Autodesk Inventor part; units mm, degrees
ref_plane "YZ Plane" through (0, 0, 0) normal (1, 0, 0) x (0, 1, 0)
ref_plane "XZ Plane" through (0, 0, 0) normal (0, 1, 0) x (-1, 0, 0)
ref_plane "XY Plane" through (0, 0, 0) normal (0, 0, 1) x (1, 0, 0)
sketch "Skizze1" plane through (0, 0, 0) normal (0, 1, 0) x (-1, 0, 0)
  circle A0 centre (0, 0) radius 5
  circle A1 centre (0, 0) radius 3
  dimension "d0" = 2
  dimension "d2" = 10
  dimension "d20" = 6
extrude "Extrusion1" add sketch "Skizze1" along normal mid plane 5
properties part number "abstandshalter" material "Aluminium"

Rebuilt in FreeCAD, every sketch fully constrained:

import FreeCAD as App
import Part
import Sketcher
from FreeCAD import Vector

doc = App.newDocument("Part")
params = doc.addObject("Spreadsheet::Sheet", "Params")
for row, (alias, value) in enumerate([
    ("sketch1_diameter", "10 mm"),
    ("sketch1_diameter2", "6 mm"),
    ("pad1_length", "5 mm"),
], start=1):
    params.set(f"A{row}", alias)
    params.set(f"B{row}", "=" + value)
    params.setAlias(f"B{row}", alias)

body = doc.addObject("PartDesign::Body", "Body")

sketch1 = body.newObject("Sketcher::SketchObject", "Sketch")
sketch1.AttachmentSupport = (doc.getObject("XZ_Plane"), [""])
sketch1.MapMode = "FlatFace"
sketch1.addGeometry(Part.Circle(Vector(0, 0, 0), Vector(0, 0, 1), 5), False)
sketch1.addGeometry(Part.Circle(Vector(0, 0, 0), Vector(0, 0, 1), 3), False)
sketch1.addConstraint(Sketcher.Constraint("Coincident", 0, 3, -1, 1))
sketch1.addConstraint(Sketcher.Constraint("Coincident", 1, 3, -1, 1))
sketch1.addConstraint(Sketcher.Constraint("Diameter", 0, 10.0))
sketch1.addConstraint(Sketcher.Constraint("Diameter", 1, 6.0))
sketch1.setExpression("Constraints[2]", "Params.sketch1_diameter")
sketch1.setExpression("Constraints[3]", "Params.sketch1_diameter2")
pad1 = body.newObject("PartDesign::Pad", "Pad")
pad1.Profile = sketch1
pad1.setExpression("Length", "Params.pad1_length")
pad1.Midplane = True

doc.recompute()
